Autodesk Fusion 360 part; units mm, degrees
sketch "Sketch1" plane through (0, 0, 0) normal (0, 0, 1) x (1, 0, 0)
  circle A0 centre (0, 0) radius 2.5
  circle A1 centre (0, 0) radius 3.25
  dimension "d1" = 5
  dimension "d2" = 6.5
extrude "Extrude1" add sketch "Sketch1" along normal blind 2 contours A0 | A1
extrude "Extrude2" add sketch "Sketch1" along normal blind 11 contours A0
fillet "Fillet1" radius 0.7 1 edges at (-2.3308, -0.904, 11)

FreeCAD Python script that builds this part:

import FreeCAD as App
import Part
import Sketcher
Q = App.Units.Quantity


def edges_at(feature, points):
    """Names of the edges that pass closest to the given points."""
    edges = feature.Shape.Edges
    near = lambda p: min(range(len(edges)), key=lambda i: edges[i].distToShape(Part.Vertex(*p))[0])
    return sorted({f"Edge{near(p) + 1}" for p in points})

doc = App.newDocument("Part")
body = doc.addObject("PartDesign::Body", "Body")

# Sketch on XY plane
sketch1 = body.newObject("Sketcher::SketchObject", "Sketch")
sketch1.AttachmentSupport = (doc.getObject("XY_Plane"), [""])
sketch1.MapMode = "FlatFace"
sketch1.addGeometry(Part.Circle(App.Vector(0, 0, 0), App.Vector(0, 0, 1), 3.25), False)
sketch1.addConstraint([
    Sketcher.Constraint("Coincident", 0, 3, -1, 1),
    Sketcher.Constraint("Diameter", 0, Q("6.5 mm")),
])
pad1 = body.newObject("PartDesign::Pad", "Pad")
pad1.Profile = sketch1
pad1.Length = 2

# Sketch on XY plane
sketch2 = body.newObject("Sketcher::SketchObject", "Sketch001")
sketch2.AttachmentSupport = (doc.getObject("XY_Plane"), [""])
sketch2.MapMode = "FlatFace"
sketch2.addGeometry(Part.Circle(App.Vector(0, 0, 0), App.Vector(0, 0, 1), 2.5), False)
sketch2.addConstraint([
    Sketcher.Constraint("Coincident", 0, 3, -1, 1),
    Sketcher.Constraint("Diameter", 0, Q("5 mm")),
])
pad2 = body.newObject("PartDesign::Pad", "Pad001")
pad2.Profile = sketch2
pad2.Length = 11
doc.recompute()

fillet = body.newObject("PartDesign::Fillet", "Fillet")
fillet.Base = (pad2, edges_at(pad2, [(-2.331, -0.904, 11)]))
fillet.Radius = 0.7

doc.recompute()
